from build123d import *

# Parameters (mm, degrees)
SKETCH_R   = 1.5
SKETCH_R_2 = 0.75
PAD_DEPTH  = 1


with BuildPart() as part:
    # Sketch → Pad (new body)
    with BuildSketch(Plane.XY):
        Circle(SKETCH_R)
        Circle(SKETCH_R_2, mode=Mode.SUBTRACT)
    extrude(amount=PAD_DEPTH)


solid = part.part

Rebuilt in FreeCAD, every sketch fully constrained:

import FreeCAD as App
import Part
import Sketcher

doc = App.newDocument("Part")
body = doc.addObject("PartDesign::Body", "Body")

sketch1 = body.newObject("Sketcher::SketchObject", "Sketch")
sketch1.AttachmentSupport = (doc.getObject("XY_Plane"), [""])
sketch1.MapMode = "FlatFace"
sketch1.addGeometry([
    Part.Circle(App.Vector(0, 0, 0), App.Vector(0, 0, 1), 1.5),
    Part.Circle(App.Vector(0, 0, 0), App.Vector(0, 0, 1), 0.8),
], False)
sketch1.addConstraint([
    Sketcher.Constraint("Coincident", 0, 3, -1, 1),
    Sketcher.Constraint("Coincident", 1, 3, -1, 1),
    Sketcher.Constraint("Diameter", 0, 3.0),
    Sketcher.Constraint("Diameter", 1, 1.5),
])
pad1 = body.newObject("PartDesign::Pad", "Pad")
pad1.Profile = sketch1
pad1.Length = 1

doc.recompute()
